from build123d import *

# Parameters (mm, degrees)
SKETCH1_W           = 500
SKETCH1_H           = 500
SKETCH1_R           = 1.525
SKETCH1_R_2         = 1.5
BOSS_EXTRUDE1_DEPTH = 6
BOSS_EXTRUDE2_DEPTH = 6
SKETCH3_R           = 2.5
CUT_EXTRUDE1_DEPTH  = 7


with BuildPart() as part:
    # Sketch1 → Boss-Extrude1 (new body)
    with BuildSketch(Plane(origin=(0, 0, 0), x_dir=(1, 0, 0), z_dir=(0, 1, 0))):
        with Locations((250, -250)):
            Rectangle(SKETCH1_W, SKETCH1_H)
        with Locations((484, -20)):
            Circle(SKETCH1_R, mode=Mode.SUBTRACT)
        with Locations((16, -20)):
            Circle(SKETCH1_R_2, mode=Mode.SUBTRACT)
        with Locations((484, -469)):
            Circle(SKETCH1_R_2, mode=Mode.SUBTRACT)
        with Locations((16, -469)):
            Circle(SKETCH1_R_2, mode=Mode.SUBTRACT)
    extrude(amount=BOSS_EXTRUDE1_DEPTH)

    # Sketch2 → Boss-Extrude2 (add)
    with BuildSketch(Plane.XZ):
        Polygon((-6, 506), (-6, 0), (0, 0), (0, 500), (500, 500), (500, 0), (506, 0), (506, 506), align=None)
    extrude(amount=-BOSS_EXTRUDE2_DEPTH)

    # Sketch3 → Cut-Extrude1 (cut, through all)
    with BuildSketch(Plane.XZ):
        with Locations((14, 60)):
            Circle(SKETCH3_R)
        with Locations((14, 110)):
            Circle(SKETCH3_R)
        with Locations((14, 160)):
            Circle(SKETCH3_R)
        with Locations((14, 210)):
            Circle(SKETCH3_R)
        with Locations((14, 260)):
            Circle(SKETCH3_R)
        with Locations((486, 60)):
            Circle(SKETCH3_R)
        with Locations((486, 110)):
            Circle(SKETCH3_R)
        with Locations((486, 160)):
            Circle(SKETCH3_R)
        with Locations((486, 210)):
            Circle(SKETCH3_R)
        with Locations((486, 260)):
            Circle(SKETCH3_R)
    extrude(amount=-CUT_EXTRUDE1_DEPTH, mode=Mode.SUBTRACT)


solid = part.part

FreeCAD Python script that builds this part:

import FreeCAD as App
import Part
import Sketcher
from FreeCAD import Vector
Q = App.Units.Quantity

doc = App.newDocument("Part")
body = doc.addObject("PartDesign::Body", "Body")

# Sketch on XZ plane
sketch1 = body.newObject("Sketcher::SketchObject", "Sketch")
sketch1.AttachmentSupport = (doc.getObject("XZ_Plane"), [""])
sketch1.MapMode = "FlatFace"
sketch1.addGeometry([
    Part.LineSegment(Vector(0, 0, 0), Vector(0, 500, 0)),  # 0
    Part.LineSegment(Vector(0, 500, 0), Vector(500, 500, 0)),  # 1
    Part.LineSegment(Vector(500, 500, 0), Vector(500, 0, 0)),  # 2
    Part.LineSegment(Vector(500, 0, 0), Vector(0, 0, 0)),  # 3
    Part.Circle(Vector(16, 469, 0), Vector(0, 0, 1), 1.5),  # 4
    Part.Circle(Vector(484, 469, 0), Vector(0, 0, 1), 1.5),  # 5
    Part.Circle(Vector(16, 20, 0), Vector(0, 0, 1), 1.5),  # 6
    Part.Circle(Vector(484, 20, 0), Vector(0, 0, 1), 1.525),  # 7
], False)
sketch1.addConstraint([
    Sketcher.Constraint("Coincident", 0, 2, 1, 1),
    Sketcher.Constraint("Coincident", 1, 2, 2, 1),
    Sketcher.Constraint("Coincident", 2, 2, 3, 1),
    Sketcher.Constraint("Coincident", 3, 2, 0, 1),
    Sketcher.Constraint("Vertical", 0),
    Sketcher.Constraint("Horizontal", 1),
    Sketcher.Constraint("Vertical", 2),
    Sketcher.Constraint("Horizontal", 3),
    Sketcher.Constraint("Coincident", 3, 2, -1, 1),
    Sketcher.Constraint("Equal", 4, 5),
    Sketcher.Constraint("Equal", 5, 6),
    Sketcher.Constraint("Horizontal", 4, 3, 5, 3),
    Sketcher.Constraint("Horizontal", 6, 3, 7, 3),
    Sketcher.Constraint("Vertical", 4, 3, 6, 3),
    Sketcher.Constraint("Vertical", 5, 3, 7, 3),
    Sketcher.Constraint("Equal", 3, 0),
    Sketcher.Constraint("Diameter", 4, Q("3 mm")),
    Sketcher.Constraint("Diameter", 7, Q("3.05 mm")),
    Sketcher.Constraint("DistanceX", 1, 1, 1, 2, Q("500 mm")),
    Sketcher.Constraint("DistanceX", -1, 1, 4, 3, Q("16 mm")),
    Sketcher.Constraint("DistanceY", -1, 1, 4, 3, Q("469 mm")),
    Sketcher.Constraint("DistanceX", -1, 1, 5, 3, Q("484 mm")),
    Sketcher.Constraint("DistanceY", -1, 1, 6, 3, Q("20 mm")),
])
pad1 = body.newObject("PartDesign::Pad", "Pad")
pad1.Profile = sketch1
pad1.Length = 6
pad1.Reversed = True

# Sketch on XZ plane
sketch2 = body.newObject("Sketcher::SketchObject", "Sketch001")
sketch2.AttachmentSupport = (doc.getObject("XZ_Plane"), [""])
sketch2.MapMode = "FlatFace"
sketch2.addGeometry([
    Part.LineSegment(Vector(-6, 506, 0), Vector(-6, 0, 0)),  # 0
    Part.LineSegment(Vector(-6, 0, 0), Vector(0, 0, 0)),  # 1
    Part.LineSegment(Vector(0, 0, 0), Vector(0, 500, 0)),  # 2
    Part.LineSegment(Vector(0, 500, 0), Vector(500, 500, 0)),  # 3
    Part.LineSegment(Vector(500, 500, 0), Vector(500, 0, 0)),  # 4
    Part.LineSegment(Vector(500, 0, 0), Vector(506, 0, 0)),  # 5
    Part.LineSegment(Vector(506, 0, 0), Vector(506, 506, 0)),  # 6
    Part.LineSegment(Vector(506, 506, 0), Vector(-6, 506, 0)),  # 7
], False)
sketch2.addConstraint([
    Sketcher.Constraint("Coincident", 0, 2, 1, 1),
    Sketcher.Constraint("Coincident", 1, 2, 2, 1),
    Sketcher.Constraint("Coincident", 2, 2, 3, 1),
    Sketcher.Constraint("Coincident", 3, 2, 4, 1),
    Sketcher.Constraint("Coincident", 4, 2, 5, 1),
    Sketcher.Constraint("Coincident", 5, 2, 6, 1),
    Sketcher.Constraint("Coincident", 6, 2, 7, 1),
    Sketcher.Constraint("Coincident", 7, 2, 0, 1),
    Sketcher.Constraint("Vertical", 0),
    Sketcher.Constraint("Horizontal", 1),
    Sketcher.Constraint("Vertical", 2),
    Sketcher.Constraint("Horizontal", 3),
    Sketcher.Constraint("Vertical", 4),
    Sketcher.Constraint("Horizontal", 5),
    Sketcher.Constraint("Vertical", 6),
    Sketcher.Constraint("Horizontal", 7),
    Sketcher.Constraint("Coincident", 1, 2, -1, 1),
    Sketcher.Constraint("PointOnObject", 4, 2, -1),
    Sketcher.Constraint("Equal", 1, 5),
    Sketcher.Constraint("Equal", 3, 2),
    Sketcher.Constraint("DistanceX", 1, 1, 1, 2, Q("6 mm")),
    Sketcher.Constraint("DistanceX", 3, 1, 3, 2, Q("500 mm")),
    Sketcher.Constraint("DistanceY", 0, 2, 0, 1, Q("506 mm")),
])
pad2 = body.newObject("PartDesign::Pad", "Pad001")
pad2.Profile = sketch2
pad2.Length = 6
pad2.Reversed = True

# Sketch on XZ plane
sketch3 = body.newObject("Sketcher::SketchObject", "Sketch002")
sketch3.AttachmentSupport = (doc.getObject("XZ_Plane"), [""])
sketch3.MapMode = "FlatFace"
sketch3.addGeometry([
    Part.Circle(Vector(14, 60, 0), Vector(0, 0, 1), 2.5),  # 0
    Part.Circle(Vector(14, 110, 0), Vector(0, 0, 1), 2.5),  # 1
    Part.Circle(Vector(14, 160, 0), Vector(0, 0, 1), 2.5),  # 2
    Part.Circle(Vector(14, 210, 0), Vector(0, 0, 1), 2.5),  # 3
    Part.Circle(Vector(14, 260, 0), Vector(0, 0, 1), 2.5),  # 4
    Part.Circle(Vector(486, 60, 0), Vector(0, 0, 1), 2.5),  # 5
    Part.Circle(Vector(486, 110, 0), Vector(0, 0, 1), 2.5),  # 6
    Part.Circle(Vector(486, 160, 0), Vector(0, 0, 1), 2.5),  # 7
    Part.Circle(Vector(486, 210, 0), Vector(0, 0, 1), 2.5),  # 8
    Part.Circle(Vector(486, 260, 0), Vector(0, 0, 1), 2.5),  # 9
], False)
sketch3.addConstraint([
    Sketcher.Constraint("Equal", 0, 1),
    Sketcher.Constraint("Equal", 1, 2),
    Sketcher.Constraint("Equal", 2, 3),
    Sketcher.Constraint("Equal", 3, 4),
    Sketcher.Constraint("Equal", 4, 5),
    Sketcher.Constraint("Equal", 5, 6),
    Sketcher.Constraint("Equal", 6, 7),
    Sketcher.Constraint("Equal", 7, 8),
    Sketcher.Constraint("Equal", 8, 9),
    Sketcher.Constraint("Horizontal", 0, 3, 5, 3),
    Sketcher.Constraint("Horizontal", 1, 3, 6, 3),
    Sketcher.Constraint("Horizontal", 2, 3, 7, 3),
    Sketcher.Constraint("Horizontal", 3, 3, 8, 3),
    Sketcher.Constraint("Horizontal", 4, 3, 9, 3),
    Sketcher.Constraint("Vertical", 0, 3, 1, 3),
    Sketcher.Constraint("Vertical", 1, 3, 2, 3),
    Sketcher.Constraint("Vertical", 2, 3, 3, 3),
    Sketcher.Constraint("Vertical", 3, 3, 4, 3),
    Sketcher.Constraint("Vertical", 5, 3, 6, 3),
    Sketcher.Constraint("Vertical", 6, 3, 7, 3),
    Sketcher.Constraint("Vertical", 7, 3, 8, 3),
    Sketcher.Constraint("Vertical", 8, 3, 9, 3),
    Sketcher.Constraint("Diameter", 0, Q("5 mm")),
    Sketcher.Constraint("DistanceX", -1, 1, 0, 3, Q("14 mm")),
    Sketcher.Constraint("DistanceY", -1, 1, 0, 3, Q("60 mm")),
    Sketcher.Constraint("DistanceY", -1, 1, 1, 3, Q("110 mm")),
    Sketcher.Constraint("DistanceY", -1, 1, 2, 3, Q("160 mm")),
    Sketcher.Constraint("DistanceY", -1, 1, 3, 3, Q("210 mm")),
    Sketcher.Constraint("DistanceY", -1, 1, 4, 3, Q("260 mm")),
    Sketcher.Constraint("DistanceX", -1, 1, 5, 3, Q("486 mm")),
])
pocket1 = body.newObject("PartDesign::Pocket", "Pocket")
pocket1.Profile = sketch3
pocket1.Type = "ThroughAll"

doc.recompute()
